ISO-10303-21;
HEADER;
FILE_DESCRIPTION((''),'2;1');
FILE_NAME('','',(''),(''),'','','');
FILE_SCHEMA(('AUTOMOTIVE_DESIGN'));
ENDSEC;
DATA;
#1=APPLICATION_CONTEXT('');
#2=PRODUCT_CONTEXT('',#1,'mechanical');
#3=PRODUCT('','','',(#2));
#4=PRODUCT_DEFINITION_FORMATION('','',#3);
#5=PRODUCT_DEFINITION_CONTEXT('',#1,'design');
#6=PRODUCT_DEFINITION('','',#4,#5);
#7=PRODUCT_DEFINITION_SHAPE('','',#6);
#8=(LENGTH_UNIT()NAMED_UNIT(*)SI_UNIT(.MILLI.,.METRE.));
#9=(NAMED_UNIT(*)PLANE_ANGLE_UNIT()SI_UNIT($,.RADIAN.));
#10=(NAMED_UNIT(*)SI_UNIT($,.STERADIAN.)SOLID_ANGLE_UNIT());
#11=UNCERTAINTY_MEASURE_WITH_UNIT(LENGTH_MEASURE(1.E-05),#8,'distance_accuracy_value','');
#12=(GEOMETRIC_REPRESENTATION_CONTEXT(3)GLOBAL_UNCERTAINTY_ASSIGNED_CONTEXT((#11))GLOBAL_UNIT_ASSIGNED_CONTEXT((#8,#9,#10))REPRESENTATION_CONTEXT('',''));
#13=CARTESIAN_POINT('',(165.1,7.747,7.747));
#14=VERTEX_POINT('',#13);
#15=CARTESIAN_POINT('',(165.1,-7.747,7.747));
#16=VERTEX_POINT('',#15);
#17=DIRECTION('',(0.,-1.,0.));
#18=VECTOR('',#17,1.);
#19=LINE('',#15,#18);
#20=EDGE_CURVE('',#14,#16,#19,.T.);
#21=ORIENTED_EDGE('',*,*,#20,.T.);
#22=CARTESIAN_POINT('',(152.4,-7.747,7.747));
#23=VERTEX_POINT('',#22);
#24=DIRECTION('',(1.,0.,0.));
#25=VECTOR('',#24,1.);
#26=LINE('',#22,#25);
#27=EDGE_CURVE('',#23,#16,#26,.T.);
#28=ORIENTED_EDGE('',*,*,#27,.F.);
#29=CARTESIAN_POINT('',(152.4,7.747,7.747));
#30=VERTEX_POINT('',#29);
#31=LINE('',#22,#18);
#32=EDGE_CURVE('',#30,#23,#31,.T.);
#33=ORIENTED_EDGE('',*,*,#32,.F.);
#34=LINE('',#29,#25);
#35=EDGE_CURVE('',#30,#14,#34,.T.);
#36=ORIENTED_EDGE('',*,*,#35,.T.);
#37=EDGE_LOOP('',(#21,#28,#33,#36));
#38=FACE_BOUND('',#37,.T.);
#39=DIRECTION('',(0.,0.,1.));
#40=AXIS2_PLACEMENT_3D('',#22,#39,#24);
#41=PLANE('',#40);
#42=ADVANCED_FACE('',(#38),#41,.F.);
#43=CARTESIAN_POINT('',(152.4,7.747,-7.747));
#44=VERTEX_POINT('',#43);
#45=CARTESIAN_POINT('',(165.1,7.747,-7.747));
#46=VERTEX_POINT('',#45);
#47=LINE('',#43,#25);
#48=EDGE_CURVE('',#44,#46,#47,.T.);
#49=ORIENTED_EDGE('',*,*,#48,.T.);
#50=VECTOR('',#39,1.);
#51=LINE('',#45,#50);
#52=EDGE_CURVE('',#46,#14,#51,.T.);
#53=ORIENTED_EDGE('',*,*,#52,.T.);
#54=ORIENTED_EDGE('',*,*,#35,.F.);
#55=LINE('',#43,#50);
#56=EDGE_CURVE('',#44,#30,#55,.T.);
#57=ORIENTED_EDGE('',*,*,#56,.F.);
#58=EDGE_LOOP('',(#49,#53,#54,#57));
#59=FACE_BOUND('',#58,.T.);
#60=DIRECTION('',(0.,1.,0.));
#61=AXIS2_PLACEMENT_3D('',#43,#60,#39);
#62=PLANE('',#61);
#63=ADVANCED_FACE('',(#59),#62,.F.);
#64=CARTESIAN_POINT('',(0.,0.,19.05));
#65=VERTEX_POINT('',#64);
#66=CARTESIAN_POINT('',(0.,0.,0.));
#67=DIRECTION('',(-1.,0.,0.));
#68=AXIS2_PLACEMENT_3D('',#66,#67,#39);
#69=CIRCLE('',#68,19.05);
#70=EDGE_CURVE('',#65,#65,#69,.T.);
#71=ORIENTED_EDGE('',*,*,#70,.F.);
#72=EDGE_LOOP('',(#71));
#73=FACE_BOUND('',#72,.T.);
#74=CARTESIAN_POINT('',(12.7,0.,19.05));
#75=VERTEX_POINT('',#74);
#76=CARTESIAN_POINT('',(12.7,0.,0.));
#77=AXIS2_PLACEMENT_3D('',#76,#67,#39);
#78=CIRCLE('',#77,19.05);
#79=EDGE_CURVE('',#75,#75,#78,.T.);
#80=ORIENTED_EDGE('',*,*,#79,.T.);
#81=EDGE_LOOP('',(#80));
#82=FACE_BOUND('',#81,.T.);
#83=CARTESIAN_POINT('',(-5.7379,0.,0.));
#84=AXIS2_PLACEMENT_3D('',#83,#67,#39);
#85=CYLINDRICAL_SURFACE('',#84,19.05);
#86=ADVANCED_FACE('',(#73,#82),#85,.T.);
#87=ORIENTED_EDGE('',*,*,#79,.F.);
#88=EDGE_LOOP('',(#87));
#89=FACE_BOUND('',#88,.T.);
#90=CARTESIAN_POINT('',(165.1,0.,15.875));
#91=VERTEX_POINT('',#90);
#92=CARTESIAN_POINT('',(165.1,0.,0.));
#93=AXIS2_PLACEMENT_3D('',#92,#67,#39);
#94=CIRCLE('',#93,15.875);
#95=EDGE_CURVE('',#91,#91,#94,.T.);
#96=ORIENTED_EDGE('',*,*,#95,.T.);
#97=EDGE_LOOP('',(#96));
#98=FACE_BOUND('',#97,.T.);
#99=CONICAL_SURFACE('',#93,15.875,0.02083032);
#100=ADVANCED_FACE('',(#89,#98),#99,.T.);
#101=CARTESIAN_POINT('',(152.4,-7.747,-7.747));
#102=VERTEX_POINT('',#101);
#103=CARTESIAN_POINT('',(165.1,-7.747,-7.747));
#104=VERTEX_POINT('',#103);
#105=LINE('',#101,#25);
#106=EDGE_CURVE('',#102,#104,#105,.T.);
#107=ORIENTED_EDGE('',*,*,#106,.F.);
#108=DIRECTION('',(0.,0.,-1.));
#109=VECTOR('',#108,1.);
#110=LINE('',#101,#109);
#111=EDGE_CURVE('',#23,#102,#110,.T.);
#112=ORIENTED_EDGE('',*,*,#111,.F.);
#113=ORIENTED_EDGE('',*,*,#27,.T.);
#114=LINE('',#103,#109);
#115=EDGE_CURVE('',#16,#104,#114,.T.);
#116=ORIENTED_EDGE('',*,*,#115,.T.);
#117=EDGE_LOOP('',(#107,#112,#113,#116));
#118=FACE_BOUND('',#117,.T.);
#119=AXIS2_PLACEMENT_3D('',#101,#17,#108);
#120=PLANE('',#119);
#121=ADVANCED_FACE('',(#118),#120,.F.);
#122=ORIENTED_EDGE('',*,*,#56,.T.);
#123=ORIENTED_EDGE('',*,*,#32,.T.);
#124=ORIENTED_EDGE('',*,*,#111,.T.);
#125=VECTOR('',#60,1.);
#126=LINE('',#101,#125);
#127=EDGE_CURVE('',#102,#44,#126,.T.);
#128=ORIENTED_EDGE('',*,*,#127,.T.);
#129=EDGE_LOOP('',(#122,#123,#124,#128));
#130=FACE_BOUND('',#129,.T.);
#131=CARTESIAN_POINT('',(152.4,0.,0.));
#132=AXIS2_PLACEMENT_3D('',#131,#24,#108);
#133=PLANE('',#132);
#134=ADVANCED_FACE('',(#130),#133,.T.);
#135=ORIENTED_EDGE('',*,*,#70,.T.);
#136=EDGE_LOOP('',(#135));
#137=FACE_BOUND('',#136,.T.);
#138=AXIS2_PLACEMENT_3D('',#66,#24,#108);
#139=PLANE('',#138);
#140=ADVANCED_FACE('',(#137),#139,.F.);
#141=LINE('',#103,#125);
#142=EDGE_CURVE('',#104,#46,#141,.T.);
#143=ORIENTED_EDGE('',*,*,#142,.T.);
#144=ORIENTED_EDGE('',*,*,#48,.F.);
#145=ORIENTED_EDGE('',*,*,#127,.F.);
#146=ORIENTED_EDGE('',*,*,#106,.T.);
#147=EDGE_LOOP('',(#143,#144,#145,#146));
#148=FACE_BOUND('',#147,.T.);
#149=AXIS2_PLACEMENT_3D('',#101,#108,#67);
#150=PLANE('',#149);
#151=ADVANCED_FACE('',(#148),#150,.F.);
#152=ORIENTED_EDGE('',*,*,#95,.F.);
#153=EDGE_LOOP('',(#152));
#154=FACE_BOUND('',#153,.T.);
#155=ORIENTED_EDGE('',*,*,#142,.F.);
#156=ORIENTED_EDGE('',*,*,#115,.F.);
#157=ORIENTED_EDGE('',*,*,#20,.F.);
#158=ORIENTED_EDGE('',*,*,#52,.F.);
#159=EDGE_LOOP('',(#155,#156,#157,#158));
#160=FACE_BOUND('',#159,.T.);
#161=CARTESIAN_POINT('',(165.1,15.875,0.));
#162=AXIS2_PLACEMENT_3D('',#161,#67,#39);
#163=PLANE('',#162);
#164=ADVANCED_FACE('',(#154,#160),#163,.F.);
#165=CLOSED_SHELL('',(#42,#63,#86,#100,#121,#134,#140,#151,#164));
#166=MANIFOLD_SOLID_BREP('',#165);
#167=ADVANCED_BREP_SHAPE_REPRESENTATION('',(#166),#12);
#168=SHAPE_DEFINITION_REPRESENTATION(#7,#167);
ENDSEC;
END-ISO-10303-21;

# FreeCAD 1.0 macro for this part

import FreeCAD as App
import Part
import Sketcher
from FreeCAD import Vector
Q = App.Units.Quantity


def add_polygon(sketch, points):
    """Adds a closed chain of lines whose ends are joined by coincident constraints."""
    first, n = sketch.GeometryCount, len(points)
    for a, b in zip(points, points[1:] + points[:1]):
        sketch.addGeometry(Part.LineSegment(App.Vector(*a, 0), App.Vector(*b, 0)), False)
    for i in range(n):
        sketch.addConstraint(Sketcher.Constraint("Coincident", first + i, 2, first + (i + 1) % n, 1))

doc = App.newDocument("Part")
body = doc.addObject("PartDesign::Body", "Body")

# Sketch on XY plane
sketch1 = body.newObject("Sketcher::SketchObject", "Sketch")
sketch1.AttachmentSupport = (doc.getObject("XY_Plane"), [""])
sketch1.MapMode = "FlatFace"
add_polygon(sketch1, [(0, 19), (0, 0), (165, 0), (165, 16), (13, 19)])  # lines 0-4
sketch1.addConstraint(Sketcher.Constraint("Vertical", 0))
sketch1.addConstraint(Sketcher.Constraint("Horizontal", 1))
sketch1.addConstraint(Sketcher.Constraint("Vertical", 2))
sketch1.addConstraint(Sketcher.Constraint("Horizontal", 4))
sketch1.addConstraint(Sketcher.Constraint("Coincident", 0, 2, -1, 1))
sketch1.addConstraint(Sketcher.Constraint("DistanceX", 1, 1, 1, 2, Q("6.5 in")))
sketch1.addConstraint(Sketcher.Constraint("DistanceX", 4, 2, 4, 1, Q("0.5 in")))
sketch1.addConstraint(Sketcher.Constraint("DistanceY", 0, 2, 0, 1, Q("0.75 in")))
sketch1.addConstraint(Sketcher.Constraint("DistanceY", 2, 1, 2, 2, Q("0.625 in")))
revolution = body.newObject("PartDesign::Revolution", "Revolution")
revolution.Profile = sketch1
revolution.ReferenceAxis = (sketch1, ["H_Axis"])
revolution.Angle = 360

# Sketch on YZ plane
sketch2 = body.newObject("Sketcher::SketchObject", "Sketch001")
sketch2.AttachmentSupport = (doc.getObject("YZ_Plane"), [""])
sketch2.MapMode = "FlatFace"
sketch2.AttachmentOffset = App.Placement(Vector(0, 0, 6.5 * 25.4), App.Rotation())
add_polygon(sketch2, [(8, 8), (-8, 8), (-8, -8), (8, -8)])  # lines 0-3
sketch2.addConstraint(Sketcher.Constraint("Horizontal", 0))
sketch2.addConstraint(Sketcher.Constraint("Vertical", 1))
sketch2.addConstraint(Sketcher.Constraint("Horizontal", 2))
sketch2.addConstraint(Sketcher.Constraint("Vertical", 3))
sketch2.addConstraint(Sketcher.Constraint("Symmetric", 0, 2, 2, 2, -1, 1))
sketch2.addConstraint(Sketcher.Constraint("Equal", 2, 1))
sketch2.addConstraint(Sketcher.Constraint("DistanceX", 0, 2, 0, 1, Q("0.61 in")))
pocket1 = body.newObject("PartDesign::Pocket", "Pocket")
pocket1.Profile = sketch2
pocket1.Length = Q("0.5 in")

doc.recompute()
